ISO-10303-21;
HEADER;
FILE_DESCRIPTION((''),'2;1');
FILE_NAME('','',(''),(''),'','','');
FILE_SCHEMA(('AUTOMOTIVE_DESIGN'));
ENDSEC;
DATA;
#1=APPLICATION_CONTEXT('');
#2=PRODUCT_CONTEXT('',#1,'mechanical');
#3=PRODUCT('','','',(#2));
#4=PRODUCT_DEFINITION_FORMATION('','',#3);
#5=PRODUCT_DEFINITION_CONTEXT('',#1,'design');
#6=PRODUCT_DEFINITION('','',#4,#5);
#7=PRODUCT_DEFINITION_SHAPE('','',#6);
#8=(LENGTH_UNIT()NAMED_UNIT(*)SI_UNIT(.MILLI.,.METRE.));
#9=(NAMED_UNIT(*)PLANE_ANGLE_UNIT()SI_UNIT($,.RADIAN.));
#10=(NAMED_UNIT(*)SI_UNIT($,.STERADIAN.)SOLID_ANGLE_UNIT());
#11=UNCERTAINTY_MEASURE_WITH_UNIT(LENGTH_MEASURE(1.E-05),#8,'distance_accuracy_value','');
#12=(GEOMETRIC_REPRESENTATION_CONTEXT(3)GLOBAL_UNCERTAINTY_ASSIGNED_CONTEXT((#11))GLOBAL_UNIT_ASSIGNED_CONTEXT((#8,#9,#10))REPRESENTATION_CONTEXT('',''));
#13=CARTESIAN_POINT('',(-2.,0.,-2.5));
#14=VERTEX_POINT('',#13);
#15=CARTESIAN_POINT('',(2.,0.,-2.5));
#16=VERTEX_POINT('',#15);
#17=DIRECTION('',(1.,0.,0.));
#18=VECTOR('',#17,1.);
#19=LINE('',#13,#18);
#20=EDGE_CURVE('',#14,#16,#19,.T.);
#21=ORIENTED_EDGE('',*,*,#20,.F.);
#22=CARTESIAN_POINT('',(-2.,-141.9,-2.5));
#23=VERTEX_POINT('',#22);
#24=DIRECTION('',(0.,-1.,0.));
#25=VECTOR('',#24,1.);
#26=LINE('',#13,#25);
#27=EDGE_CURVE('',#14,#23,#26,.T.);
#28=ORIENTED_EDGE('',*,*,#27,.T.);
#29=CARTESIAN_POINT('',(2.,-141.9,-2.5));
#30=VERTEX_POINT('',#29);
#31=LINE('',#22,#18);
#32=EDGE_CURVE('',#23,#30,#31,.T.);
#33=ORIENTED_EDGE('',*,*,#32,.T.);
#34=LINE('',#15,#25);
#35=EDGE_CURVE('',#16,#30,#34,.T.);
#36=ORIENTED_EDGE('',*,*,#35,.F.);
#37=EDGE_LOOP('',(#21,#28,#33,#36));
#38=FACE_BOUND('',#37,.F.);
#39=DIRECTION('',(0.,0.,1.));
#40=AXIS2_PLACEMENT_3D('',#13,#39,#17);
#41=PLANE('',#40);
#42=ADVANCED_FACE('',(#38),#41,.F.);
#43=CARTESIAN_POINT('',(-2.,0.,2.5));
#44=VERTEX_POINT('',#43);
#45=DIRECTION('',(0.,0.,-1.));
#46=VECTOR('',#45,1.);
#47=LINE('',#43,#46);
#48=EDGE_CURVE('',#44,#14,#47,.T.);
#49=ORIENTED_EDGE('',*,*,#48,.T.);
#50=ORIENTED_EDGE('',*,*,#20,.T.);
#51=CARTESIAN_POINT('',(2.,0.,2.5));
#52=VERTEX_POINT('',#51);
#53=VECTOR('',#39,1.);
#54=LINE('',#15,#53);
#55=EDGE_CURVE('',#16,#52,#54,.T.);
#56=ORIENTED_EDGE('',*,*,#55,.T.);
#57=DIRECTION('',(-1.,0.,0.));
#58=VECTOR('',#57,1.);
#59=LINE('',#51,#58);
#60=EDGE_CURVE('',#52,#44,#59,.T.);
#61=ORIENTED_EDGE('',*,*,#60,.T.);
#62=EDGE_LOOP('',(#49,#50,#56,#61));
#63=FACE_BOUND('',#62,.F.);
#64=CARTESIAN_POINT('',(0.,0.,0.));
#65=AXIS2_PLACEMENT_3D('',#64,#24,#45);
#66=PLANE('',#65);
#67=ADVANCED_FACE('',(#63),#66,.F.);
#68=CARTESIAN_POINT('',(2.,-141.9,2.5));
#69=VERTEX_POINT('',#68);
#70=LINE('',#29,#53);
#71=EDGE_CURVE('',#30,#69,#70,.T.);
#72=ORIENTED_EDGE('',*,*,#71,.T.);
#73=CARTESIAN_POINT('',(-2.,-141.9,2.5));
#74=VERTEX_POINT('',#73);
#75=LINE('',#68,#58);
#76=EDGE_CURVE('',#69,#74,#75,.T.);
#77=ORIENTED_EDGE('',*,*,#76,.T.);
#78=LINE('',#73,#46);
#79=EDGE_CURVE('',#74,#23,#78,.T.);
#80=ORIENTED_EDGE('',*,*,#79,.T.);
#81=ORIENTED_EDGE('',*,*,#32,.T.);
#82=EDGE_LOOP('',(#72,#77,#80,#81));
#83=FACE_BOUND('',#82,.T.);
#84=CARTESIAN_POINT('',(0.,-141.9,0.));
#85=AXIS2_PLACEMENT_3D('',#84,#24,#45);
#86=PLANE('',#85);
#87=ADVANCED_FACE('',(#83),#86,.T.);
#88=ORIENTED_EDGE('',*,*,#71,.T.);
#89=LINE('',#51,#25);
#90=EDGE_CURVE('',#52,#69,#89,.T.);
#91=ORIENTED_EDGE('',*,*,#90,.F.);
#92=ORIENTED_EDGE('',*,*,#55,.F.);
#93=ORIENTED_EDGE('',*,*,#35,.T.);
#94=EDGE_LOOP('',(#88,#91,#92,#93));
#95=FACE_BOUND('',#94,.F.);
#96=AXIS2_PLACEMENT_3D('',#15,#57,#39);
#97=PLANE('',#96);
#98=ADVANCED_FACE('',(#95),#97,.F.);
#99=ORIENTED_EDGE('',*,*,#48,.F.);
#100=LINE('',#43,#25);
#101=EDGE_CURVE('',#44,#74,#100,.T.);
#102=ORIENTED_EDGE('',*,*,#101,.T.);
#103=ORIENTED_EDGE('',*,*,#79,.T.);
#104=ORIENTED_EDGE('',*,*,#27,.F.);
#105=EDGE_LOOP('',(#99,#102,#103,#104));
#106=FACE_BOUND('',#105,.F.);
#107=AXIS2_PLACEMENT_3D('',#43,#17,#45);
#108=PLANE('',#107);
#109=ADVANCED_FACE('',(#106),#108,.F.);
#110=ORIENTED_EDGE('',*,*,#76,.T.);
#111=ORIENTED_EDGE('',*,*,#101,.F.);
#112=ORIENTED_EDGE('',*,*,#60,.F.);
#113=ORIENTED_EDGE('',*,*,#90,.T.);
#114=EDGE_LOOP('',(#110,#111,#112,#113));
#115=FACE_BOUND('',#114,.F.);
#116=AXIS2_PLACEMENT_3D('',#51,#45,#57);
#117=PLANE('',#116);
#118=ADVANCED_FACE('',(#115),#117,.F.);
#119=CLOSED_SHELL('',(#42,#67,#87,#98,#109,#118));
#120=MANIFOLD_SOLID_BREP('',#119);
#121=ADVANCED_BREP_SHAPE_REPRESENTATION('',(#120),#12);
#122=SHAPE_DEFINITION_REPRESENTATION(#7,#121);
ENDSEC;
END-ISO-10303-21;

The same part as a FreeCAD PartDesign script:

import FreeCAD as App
import Part
import Sketcher
Q = App.Units.Quantity


def add_polygon(sketch, points):
    """Adds a closed chain of lines whose ends are joined by coincident constraints."""
    first, n = sketch.GeometryCount, len(points)
    for a, b in zip(points, points[1:] + points[:1]):
        sketch.addGeometry(Part.LineSegment(App.Vector(*a, 0), App.Vector(*b, 0)), False)
    for i in range(n):
        sketch.addConstraint(Sketcher.Constraint("Coincident", first + i, 2, first + (i + 1) % n, 1))

doc = App.newDocument("Part")
body = doc.addObject("PartDesign::Body", "Body")

# Sketch on XZ plane
sketch1 = doc.addObject("Sketcher::SketchObject", "Sketch")
body.addObject(sketch1)
sketch1.AttachmentSupport = (doc.XZ_Plane, [""])
sketch1.MapMode = "FlatFace"
add_polygon(sketch1, [(-2, -2.5), (2, -2.5), (2, 2.5), (-2, 2.5)])  # lines 0-3
sketch1.addConstraint(Sketcher.Constraint("Horizontal", 0))
sketch1.addConstraint(Sketcher.Constraint("Vertical", 1))
sketch1.addConstraint(Sketcher.Constraint("Horizontal", 2))
sketch1.addConstraint(Sketcher.Constraint("Vertical", 3))
sketch1.addConstraint(Sketcher.Constraint("Symmetric", 0, 2, 2, 2, -1, 1))
sketch1.addConstraint(Sketcher.Constraint("DistanceX", 0, 1, 0, 2, Q("4 mm")))
sketch1.addConstraint(Sketcher.Constraint("DistanceY", 1, 1, 1, 2, Q("5 mm")))
pad1 = doc.addObject("PartDesign::Pad", "Pad")
body.addObject(pad1)
pad1.Profile = sketch1
pad1.Length = 141.9

doc.recompute()
